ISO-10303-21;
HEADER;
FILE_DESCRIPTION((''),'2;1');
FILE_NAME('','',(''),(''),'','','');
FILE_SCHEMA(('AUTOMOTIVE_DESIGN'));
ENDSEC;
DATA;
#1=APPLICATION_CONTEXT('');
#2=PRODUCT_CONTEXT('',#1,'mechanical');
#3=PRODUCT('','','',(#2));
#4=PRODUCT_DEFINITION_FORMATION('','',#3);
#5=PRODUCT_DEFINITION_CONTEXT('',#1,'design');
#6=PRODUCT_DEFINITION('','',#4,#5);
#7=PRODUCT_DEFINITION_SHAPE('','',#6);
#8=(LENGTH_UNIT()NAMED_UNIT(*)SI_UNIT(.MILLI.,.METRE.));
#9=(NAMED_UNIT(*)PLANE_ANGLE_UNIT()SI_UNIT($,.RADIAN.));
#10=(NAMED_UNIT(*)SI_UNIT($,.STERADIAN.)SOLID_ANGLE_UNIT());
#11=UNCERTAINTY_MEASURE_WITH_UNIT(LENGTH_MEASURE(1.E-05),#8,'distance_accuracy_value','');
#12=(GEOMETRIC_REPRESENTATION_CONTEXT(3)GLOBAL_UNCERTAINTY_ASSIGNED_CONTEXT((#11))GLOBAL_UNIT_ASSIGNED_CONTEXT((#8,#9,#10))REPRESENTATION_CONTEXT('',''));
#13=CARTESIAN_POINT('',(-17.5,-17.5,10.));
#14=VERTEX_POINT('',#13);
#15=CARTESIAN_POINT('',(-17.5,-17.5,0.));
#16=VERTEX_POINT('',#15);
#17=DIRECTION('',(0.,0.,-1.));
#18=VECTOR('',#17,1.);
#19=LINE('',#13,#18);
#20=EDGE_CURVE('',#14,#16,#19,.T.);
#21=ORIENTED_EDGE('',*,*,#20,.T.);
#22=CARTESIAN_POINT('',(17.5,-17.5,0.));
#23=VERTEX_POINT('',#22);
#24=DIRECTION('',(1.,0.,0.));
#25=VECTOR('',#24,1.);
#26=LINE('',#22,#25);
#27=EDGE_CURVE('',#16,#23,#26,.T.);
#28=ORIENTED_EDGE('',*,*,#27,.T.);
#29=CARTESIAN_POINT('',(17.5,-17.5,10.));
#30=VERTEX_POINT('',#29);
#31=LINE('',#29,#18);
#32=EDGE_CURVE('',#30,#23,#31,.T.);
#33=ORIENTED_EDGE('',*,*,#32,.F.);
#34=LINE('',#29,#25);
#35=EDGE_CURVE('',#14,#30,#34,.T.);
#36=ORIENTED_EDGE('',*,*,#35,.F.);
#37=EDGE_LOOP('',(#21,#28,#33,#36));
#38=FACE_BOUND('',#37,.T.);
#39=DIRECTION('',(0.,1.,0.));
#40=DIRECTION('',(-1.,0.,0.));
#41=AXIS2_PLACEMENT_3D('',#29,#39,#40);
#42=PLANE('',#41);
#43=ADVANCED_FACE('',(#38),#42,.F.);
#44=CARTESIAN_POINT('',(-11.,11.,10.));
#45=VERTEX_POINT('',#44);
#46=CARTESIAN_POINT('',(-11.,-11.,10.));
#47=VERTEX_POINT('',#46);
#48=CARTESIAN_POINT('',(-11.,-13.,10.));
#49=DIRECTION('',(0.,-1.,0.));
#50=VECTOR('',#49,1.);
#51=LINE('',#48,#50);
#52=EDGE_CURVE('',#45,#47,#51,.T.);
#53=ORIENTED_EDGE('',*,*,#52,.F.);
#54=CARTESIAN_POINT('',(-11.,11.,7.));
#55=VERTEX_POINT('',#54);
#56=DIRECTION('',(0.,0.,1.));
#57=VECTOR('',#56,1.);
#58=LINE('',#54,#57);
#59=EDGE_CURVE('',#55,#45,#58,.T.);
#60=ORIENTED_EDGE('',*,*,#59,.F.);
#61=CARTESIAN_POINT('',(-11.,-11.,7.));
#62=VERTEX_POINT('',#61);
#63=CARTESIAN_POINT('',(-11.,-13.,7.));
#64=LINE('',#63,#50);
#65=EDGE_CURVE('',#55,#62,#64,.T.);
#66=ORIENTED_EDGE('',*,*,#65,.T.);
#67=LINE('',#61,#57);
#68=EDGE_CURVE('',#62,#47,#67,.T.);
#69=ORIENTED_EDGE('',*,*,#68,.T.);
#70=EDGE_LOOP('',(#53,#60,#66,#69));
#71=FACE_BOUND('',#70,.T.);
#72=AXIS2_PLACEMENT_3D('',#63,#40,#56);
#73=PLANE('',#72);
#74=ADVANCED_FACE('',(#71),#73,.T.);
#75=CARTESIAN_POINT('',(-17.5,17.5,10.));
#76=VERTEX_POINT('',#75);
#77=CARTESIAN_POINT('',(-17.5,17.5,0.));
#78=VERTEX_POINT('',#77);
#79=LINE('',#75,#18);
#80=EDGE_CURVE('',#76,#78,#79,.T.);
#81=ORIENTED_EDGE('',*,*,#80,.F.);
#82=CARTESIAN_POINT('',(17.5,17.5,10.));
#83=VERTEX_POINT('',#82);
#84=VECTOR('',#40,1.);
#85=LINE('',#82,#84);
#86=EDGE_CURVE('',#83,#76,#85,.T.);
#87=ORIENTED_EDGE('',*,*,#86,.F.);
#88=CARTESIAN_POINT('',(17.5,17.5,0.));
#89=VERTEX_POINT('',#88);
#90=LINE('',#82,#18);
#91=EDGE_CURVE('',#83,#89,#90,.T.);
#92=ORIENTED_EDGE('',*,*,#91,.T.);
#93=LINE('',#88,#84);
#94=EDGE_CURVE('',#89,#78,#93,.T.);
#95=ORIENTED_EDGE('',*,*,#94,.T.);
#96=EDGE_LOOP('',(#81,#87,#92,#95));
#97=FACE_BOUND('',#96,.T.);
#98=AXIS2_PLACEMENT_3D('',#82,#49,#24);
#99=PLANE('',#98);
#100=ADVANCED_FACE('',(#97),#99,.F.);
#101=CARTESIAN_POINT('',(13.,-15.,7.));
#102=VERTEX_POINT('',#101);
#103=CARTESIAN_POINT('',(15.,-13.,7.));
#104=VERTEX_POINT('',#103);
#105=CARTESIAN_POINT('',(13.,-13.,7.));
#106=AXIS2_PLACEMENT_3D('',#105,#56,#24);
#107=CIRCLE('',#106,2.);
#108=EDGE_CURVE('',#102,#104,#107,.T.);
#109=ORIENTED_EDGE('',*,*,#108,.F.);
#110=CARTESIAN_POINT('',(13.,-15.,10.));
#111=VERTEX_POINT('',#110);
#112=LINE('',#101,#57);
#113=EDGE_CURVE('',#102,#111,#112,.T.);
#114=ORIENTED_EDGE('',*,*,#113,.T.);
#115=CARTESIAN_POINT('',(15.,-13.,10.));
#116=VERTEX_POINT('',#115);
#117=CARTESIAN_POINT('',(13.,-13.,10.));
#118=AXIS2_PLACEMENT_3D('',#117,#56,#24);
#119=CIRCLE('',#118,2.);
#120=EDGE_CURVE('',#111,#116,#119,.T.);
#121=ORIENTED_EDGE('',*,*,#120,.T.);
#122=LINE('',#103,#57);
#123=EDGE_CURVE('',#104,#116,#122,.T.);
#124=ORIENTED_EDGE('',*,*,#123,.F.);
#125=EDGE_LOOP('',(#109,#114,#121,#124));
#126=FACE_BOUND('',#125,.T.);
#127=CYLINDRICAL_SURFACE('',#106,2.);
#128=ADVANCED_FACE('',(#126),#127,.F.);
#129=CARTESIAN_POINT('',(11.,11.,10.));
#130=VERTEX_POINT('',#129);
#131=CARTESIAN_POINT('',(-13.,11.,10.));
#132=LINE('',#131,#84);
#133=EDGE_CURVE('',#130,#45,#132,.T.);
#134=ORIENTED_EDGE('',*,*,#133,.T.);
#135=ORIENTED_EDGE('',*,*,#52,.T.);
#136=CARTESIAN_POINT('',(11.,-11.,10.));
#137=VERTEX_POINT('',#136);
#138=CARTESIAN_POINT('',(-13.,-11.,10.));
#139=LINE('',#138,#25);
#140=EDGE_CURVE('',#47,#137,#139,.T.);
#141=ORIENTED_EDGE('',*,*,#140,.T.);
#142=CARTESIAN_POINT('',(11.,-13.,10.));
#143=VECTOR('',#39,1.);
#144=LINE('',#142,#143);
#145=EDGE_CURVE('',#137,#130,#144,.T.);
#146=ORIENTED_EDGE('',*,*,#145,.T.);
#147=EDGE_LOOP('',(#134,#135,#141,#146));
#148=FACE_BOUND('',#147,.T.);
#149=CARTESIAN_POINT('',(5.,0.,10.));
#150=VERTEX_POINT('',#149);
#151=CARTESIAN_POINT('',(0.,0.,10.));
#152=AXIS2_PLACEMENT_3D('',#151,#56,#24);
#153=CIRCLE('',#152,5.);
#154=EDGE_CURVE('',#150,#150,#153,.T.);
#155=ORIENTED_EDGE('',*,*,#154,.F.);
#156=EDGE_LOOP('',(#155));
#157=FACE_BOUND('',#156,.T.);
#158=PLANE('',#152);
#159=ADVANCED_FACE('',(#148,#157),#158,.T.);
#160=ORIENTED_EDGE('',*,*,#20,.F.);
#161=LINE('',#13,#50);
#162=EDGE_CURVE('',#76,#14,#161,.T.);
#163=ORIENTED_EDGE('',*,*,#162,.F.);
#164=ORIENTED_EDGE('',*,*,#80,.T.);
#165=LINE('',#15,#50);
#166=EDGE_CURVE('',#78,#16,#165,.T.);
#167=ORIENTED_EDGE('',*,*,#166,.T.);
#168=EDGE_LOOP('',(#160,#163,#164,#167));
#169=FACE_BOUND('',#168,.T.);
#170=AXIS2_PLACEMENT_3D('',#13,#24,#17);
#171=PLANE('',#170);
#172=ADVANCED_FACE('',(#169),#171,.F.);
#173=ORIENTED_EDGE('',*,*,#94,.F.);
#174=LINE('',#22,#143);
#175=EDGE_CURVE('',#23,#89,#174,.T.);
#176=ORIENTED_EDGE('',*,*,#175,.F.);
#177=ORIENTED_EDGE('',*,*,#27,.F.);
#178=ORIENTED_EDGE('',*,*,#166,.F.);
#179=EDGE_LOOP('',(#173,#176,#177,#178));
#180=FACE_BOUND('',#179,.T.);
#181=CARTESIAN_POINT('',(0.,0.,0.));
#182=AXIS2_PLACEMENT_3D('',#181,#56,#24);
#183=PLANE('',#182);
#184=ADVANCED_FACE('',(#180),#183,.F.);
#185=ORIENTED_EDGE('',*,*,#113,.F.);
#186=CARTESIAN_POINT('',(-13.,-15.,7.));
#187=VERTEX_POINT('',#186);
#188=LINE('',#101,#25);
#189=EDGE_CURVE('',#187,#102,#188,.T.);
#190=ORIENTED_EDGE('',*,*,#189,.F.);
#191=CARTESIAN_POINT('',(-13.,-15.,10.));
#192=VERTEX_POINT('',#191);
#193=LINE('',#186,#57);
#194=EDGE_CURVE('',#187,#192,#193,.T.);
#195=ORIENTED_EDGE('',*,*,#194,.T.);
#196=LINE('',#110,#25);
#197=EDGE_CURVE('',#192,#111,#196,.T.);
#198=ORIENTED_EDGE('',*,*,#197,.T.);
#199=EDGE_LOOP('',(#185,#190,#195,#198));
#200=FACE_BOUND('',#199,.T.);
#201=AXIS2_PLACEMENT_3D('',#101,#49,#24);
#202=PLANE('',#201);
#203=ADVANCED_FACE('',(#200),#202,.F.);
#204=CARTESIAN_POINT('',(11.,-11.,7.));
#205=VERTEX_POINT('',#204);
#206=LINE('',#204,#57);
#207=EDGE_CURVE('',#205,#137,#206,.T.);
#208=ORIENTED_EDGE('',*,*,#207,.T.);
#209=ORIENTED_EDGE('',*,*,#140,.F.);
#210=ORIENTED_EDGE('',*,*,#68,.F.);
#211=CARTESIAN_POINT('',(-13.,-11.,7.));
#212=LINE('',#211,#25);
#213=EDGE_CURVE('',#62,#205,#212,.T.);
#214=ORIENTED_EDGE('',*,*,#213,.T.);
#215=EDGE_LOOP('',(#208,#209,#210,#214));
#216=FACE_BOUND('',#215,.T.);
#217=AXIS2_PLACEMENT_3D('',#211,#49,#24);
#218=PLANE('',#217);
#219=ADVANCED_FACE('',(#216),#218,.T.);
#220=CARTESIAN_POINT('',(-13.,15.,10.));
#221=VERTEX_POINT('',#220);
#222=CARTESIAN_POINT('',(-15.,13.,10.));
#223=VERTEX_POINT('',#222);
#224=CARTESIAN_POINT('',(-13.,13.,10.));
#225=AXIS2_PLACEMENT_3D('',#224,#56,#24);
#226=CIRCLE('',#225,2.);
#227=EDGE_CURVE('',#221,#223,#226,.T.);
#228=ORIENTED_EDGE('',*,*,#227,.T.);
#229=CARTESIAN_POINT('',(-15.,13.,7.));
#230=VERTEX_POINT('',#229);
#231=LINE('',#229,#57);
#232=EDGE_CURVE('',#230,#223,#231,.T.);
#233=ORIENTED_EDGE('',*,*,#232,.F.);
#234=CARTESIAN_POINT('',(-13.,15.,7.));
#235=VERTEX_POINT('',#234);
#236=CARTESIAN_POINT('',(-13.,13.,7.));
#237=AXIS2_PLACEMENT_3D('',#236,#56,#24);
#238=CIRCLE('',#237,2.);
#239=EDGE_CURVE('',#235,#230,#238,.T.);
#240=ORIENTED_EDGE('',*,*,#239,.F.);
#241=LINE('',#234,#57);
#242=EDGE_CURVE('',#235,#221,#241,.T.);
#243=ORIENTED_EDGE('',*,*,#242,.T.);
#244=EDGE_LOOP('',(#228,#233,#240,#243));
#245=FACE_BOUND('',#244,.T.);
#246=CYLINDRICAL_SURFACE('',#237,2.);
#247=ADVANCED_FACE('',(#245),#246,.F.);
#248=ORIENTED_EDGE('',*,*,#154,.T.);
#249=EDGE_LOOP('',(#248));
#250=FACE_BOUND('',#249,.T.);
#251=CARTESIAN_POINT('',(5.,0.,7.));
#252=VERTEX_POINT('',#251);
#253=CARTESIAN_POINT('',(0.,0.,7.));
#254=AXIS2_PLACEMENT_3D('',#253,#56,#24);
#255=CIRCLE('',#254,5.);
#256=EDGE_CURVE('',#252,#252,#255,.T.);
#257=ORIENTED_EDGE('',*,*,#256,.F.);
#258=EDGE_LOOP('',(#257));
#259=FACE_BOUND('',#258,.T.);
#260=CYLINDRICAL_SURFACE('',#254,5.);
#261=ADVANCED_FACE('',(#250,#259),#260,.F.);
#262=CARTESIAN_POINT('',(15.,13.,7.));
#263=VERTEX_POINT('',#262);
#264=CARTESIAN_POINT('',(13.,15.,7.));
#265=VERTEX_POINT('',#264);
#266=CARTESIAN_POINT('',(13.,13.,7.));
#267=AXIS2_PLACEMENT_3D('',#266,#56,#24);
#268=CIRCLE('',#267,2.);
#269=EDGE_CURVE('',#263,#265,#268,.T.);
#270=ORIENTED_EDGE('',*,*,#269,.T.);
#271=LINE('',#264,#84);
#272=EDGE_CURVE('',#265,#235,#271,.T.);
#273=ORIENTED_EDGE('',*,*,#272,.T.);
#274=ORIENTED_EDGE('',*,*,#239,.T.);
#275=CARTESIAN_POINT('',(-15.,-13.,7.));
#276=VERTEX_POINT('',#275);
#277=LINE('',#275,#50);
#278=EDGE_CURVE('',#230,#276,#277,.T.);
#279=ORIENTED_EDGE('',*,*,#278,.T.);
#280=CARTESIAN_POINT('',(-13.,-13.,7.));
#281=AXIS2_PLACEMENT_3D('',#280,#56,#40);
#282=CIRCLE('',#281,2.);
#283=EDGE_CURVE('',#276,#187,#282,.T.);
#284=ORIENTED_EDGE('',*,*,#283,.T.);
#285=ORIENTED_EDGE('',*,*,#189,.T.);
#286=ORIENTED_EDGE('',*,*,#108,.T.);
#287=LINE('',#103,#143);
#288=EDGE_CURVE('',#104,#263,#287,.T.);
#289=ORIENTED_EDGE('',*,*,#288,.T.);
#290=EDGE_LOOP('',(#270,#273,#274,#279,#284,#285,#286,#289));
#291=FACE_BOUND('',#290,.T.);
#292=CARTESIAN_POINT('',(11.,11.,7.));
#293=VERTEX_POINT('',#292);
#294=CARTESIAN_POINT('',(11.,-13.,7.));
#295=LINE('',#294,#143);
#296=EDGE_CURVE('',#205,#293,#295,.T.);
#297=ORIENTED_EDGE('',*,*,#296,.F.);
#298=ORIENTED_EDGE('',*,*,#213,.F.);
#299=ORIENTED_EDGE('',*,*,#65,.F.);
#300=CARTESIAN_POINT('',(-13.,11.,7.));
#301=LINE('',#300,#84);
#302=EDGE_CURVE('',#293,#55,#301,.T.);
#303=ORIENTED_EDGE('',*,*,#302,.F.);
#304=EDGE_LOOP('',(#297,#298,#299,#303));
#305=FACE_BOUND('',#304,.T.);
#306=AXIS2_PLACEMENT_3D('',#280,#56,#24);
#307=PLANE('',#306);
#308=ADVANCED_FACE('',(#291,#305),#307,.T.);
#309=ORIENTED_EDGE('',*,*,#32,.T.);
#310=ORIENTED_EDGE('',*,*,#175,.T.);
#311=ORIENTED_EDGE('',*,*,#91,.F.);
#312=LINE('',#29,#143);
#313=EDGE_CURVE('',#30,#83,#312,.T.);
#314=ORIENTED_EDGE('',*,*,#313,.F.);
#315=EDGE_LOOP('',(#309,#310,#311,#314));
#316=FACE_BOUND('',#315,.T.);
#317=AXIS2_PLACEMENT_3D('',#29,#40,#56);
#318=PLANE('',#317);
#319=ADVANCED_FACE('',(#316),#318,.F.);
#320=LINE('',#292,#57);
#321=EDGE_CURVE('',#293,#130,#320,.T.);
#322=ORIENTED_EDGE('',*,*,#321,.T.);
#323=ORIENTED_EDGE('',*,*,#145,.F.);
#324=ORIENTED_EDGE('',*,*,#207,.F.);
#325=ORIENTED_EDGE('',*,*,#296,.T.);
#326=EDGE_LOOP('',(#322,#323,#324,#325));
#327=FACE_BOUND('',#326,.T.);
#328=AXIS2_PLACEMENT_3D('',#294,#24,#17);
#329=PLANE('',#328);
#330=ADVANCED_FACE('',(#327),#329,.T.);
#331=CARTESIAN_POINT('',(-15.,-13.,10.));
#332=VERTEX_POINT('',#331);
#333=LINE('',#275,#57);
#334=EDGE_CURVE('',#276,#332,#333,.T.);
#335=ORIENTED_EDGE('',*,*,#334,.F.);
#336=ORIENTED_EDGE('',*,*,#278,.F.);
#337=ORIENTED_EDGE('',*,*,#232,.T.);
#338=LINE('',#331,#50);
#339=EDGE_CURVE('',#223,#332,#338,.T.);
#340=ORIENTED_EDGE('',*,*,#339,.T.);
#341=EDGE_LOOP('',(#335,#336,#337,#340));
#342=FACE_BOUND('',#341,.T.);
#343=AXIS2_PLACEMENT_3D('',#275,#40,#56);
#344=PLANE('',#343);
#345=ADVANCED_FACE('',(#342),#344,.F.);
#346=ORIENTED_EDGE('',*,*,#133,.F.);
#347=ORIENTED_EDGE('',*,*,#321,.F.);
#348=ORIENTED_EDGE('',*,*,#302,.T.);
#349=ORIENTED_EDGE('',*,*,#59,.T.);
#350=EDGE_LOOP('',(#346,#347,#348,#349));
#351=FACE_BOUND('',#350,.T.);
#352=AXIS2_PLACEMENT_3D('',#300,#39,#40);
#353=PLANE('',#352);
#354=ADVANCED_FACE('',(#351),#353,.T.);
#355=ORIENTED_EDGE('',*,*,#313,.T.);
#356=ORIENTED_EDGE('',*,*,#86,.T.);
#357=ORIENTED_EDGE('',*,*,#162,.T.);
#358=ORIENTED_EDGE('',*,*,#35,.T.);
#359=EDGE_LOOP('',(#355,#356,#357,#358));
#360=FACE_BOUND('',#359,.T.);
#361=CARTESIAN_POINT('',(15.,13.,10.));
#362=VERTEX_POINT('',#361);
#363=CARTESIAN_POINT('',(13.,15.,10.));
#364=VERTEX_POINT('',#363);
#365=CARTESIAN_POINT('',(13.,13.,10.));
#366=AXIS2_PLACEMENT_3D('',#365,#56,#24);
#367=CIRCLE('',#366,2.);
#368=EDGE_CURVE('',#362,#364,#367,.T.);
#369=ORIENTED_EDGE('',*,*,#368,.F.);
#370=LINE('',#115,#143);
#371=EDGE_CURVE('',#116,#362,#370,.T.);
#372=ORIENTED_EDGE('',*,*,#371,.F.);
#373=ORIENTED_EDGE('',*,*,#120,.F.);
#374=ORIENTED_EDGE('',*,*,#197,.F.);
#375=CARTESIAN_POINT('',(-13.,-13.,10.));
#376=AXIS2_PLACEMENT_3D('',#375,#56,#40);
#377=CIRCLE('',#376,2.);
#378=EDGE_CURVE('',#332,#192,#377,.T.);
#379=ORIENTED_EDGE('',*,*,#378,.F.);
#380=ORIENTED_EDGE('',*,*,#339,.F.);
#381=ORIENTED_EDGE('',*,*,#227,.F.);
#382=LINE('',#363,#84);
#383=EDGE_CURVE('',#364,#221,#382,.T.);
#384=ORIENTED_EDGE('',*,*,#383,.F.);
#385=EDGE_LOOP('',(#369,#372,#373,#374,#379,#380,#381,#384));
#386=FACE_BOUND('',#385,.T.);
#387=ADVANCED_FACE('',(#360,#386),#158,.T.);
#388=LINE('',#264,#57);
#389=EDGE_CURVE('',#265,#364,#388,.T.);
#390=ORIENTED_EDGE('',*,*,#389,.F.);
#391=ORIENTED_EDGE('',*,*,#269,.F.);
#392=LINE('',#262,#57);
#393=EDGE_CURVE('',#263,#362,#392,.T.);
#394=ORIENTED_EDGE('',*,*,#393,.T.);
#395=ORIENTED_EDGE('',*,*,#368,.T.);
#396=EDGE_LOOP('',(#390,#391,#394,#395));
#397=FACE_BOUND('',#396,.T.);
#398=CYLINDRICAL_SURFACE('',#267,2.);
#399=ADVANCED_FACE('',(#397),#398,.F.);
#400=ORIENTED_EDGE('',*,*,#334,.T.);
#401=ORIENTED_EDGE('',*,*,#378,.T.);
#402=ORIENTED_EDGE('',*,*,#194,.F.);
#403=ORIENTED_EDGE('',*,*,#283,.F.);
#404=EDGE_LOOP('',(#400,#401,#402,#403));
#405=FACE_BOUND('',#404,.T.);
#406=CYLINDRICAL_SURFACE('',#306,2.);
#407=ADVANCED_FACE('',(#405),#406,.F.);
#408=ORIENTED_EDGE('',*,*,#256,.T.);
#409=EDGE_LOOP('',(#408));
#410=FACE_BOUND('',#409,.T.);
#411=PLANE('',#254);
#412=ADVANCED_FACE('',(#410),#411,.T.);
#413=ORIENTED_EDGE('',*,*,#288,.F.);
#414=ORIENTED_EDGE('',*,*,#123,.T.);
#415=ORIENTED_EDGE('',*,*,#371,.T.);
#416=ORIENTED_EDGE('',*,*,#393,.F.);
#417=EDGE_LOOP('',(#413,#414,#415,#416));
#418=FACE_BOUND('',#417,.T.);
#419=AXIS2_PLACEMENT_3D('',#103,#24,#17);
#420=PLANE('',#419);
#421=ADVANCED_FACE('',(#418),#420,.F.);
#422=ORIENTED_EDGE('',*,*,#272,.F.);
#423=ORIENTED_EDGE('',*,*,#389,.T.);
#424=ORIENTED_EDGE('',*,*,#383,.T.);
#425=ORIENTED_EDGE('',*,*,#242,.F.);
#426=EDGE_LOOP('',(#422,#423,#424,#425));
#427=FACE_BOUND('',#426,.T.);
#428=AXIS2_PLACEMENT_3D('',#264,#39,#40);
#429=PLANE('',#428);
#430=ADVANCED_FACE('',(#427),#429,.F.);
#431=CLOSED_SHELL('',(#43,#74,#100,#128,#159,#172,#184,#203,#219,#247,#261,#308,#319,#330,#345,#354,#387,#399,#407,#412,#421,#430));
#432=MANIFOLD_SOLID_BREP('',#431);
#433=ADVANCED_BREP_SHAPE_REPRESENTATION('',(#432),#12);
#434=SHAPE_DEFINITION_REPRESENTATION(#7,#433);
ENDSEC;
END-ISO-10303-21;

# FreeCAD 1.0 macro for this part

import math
import FreeCAD as App
import Part
import Sketcher
from FreeCAD import Vector


def add_polygon(sketch, points):
    """Adds a closed chain of lines whose ends are joined by coincident constraints."""
    first, n = sketch.GeometryCount, len(points)
    for a, b in zip(points, points[1:] + points[:1]):
        sketch.addGeometry(Part.LineSegment(App.Vector(*a, 0), App.Vector(*b, 0)), False)
    for i in range(n):
        sketch.addConstraint(Sketcher.Constraint("Coincident", first + i, 2, first + (i + 1) % n, 1))

doc = App.newDocument("Part")
body = doc.addObject("PartDesign::Body", "Body")

sketch1 = body.newObject("Sketcher::SketchObject", "Sketch")
sketch1.AttachmentSupport = (doc.getObject("XY_Plane"), [""])
sketch1.MapMode = "FlatFace"
add_polygon(sketch1, [(-18, 18), (-18, -18), (18, -18), (18, 18)])
sketch1.addConstraint([
    Sketcher.Constraint("Vertical", 0),
    Sketcher.Constraint("Horizontal", 1),
    Sketcher.Constraint("Vertical", 2),
    Sketcher.Constraint("Horizontal", 3),
    Sketcher.Constraint("Symmetric", 0, 2, 2, 2, -1, 1),
    Sketcher.Constraint("Equal", 3, 0),
    Sketcher.Constraint("DistanceX", 1, 1, 1, 2, 35.0),
])
pad1 = body.newObject("PartDesign::Pad", "Pad")
pad1.Profile = sketch1
pad1.Length = 10

sketch2 = body.newObject("Sketcher::SketchObject", "Sketch001")
sketch2.AttachmentSupport = (doc.getObject("XY_Plane"), [""])
sketch2.MapMode = "FlatFace"
sketch2.AttachmentOffset = App.Placement(Vector(0, 0, 10), App.Rotation())
sketch2.addGeometry(Part.LineSegment(Vector(13, 15, 0), Vector(-13, 15, 0)), False)
sketch2.addGeometry(Part.ArcOfCircle(Part.Circle(Vector(-13, 13, 0), Vector(0, 0, 1), 2), math.radians(90), math.radians(180)), False)
sketch2.addGeometry(Part.LineSegment(Vector(-15, 13, 0), Vector(-15, -13, 0)), False)
sketch2.addGeometry(Part.ArcOfCircle(Part.Circle(Vector(-13, -13, 0), Vector(0, 0, 1), 2), math.radians(-180), math.radians(-90)), False)
sketch2.addGeometry(Part.LineSegment(Vector(-13, -15, 0), Vector(13, -15, 0)), False)
sketch2.addGeometry(Part.ArcOfCircle(Part.Circle(Vector(13, -13, 0), Vector(0, 0, 1), 2), math.radians(-90), math.radians(0)), False)
sketch2.addGeometry(Part.LineSegment(Vector(15, -13, 0), Vector(15, 13, 0)), False)
sketch2.addGeometry(Part.ArcOfCircle(Part.Circle(Vector(13, 13, 0), Vector(0, 0, 1), 2), math.radians(0), math.radians(90)), False)
add_polygon(sketch2, [(-11, -11), (-11, 11), (11, 11), (11, -11)])
sketch2.addConstraint([
    Sketcher.Constraint("Tangent", 0, 2, 1, 1),
    Sketcher.Constraint("Tangent", 1, 2, 2, 1),
    Sketcher.Constraint("Tangent", 2, 2, 3, 1),
    Sketcher.Constraint("Tangent", 3, 2, 4, 1),
    Sketcher.Constraint("Tangent", 4, 2, 5, 1),
    Sketcher.Constraint("Tangent", 5, 2, 6, 1),
    Sketcher.Constraint("Tangent", 6, 2, 7, 1),
    Sketcher.Constraint("Tangent", 7, 2, 0, 1),
    Sketcher.Constraint("Horizontal", 0),
    Sketcher.Constraint("Vertical", 2),
    Sketcher.Constraint("Horizontal", 4),
    Sketcher.Constraint("Vertical", 6),
    Sketcher.Constraint("Vertical", 8),
    Sketcher.Constraint("Horizontal", 9),
    Sketcher.Constraint("Vertical", 10),
    Sketcher.Constraint("Horizontal", 11),
    Sketcher.Constraint("Equal", 1, 3),
    Sketcher.Constraint("Equal", 3, 5),
    Sketcher.Constraint("Equal", 5, 7),
    Sketcher.Constraint("Symmetric", 1, 3, 5, 3, -1, 1),
    Sketcher.Constraint("Symmetric", 8, 2, 10, 2, -1, 1),
    Sketcher.Constraint("Equal", 4, 2),
    Sketcher.Constraint("Equal", 11, 8),
    Sketcher.Constraint("Radius", 1, 2.0),
    Sketcher.Constraint("DistanceX", 0, 2, 0, 1, 26.0),
    Sketcher.Constraint("DistanceX", 9, 1, 9, 2, 22.0),
])
pocket1 = body.newObject("PartDesign::Pocket", "Pocket")
pocket1.Profile = sketch2
pocket1.Length = 3

sketch3 = body.newObject("Sketcher::SketchObject", "Sketch002")
sketch3.AttachmentSupport = (doc.getObject("XY_Plane"), [""])
sketch3.MapMode = "FlatFace"
sketch3.AttachmentOffset = App.Placement(Vector(0, 0, 10), App.Rotation())
sketch3.addGeometry(Part.Circle(Vector(0, 0, 0), Vector(0, 0, 1), 5), False)
sketch3.addConstraint([
    Sketcher.Constraint("Coincident", 0, 3, -1, 1),
    Sketcher.Constraint("Diameter", 0, 10.0),
])
pocket2 = body.newObject("PartDesign::Pocket", "Pocket001")
pocket2.Profile = sketch3
pocket2.Length = 3

doc.recompute()
